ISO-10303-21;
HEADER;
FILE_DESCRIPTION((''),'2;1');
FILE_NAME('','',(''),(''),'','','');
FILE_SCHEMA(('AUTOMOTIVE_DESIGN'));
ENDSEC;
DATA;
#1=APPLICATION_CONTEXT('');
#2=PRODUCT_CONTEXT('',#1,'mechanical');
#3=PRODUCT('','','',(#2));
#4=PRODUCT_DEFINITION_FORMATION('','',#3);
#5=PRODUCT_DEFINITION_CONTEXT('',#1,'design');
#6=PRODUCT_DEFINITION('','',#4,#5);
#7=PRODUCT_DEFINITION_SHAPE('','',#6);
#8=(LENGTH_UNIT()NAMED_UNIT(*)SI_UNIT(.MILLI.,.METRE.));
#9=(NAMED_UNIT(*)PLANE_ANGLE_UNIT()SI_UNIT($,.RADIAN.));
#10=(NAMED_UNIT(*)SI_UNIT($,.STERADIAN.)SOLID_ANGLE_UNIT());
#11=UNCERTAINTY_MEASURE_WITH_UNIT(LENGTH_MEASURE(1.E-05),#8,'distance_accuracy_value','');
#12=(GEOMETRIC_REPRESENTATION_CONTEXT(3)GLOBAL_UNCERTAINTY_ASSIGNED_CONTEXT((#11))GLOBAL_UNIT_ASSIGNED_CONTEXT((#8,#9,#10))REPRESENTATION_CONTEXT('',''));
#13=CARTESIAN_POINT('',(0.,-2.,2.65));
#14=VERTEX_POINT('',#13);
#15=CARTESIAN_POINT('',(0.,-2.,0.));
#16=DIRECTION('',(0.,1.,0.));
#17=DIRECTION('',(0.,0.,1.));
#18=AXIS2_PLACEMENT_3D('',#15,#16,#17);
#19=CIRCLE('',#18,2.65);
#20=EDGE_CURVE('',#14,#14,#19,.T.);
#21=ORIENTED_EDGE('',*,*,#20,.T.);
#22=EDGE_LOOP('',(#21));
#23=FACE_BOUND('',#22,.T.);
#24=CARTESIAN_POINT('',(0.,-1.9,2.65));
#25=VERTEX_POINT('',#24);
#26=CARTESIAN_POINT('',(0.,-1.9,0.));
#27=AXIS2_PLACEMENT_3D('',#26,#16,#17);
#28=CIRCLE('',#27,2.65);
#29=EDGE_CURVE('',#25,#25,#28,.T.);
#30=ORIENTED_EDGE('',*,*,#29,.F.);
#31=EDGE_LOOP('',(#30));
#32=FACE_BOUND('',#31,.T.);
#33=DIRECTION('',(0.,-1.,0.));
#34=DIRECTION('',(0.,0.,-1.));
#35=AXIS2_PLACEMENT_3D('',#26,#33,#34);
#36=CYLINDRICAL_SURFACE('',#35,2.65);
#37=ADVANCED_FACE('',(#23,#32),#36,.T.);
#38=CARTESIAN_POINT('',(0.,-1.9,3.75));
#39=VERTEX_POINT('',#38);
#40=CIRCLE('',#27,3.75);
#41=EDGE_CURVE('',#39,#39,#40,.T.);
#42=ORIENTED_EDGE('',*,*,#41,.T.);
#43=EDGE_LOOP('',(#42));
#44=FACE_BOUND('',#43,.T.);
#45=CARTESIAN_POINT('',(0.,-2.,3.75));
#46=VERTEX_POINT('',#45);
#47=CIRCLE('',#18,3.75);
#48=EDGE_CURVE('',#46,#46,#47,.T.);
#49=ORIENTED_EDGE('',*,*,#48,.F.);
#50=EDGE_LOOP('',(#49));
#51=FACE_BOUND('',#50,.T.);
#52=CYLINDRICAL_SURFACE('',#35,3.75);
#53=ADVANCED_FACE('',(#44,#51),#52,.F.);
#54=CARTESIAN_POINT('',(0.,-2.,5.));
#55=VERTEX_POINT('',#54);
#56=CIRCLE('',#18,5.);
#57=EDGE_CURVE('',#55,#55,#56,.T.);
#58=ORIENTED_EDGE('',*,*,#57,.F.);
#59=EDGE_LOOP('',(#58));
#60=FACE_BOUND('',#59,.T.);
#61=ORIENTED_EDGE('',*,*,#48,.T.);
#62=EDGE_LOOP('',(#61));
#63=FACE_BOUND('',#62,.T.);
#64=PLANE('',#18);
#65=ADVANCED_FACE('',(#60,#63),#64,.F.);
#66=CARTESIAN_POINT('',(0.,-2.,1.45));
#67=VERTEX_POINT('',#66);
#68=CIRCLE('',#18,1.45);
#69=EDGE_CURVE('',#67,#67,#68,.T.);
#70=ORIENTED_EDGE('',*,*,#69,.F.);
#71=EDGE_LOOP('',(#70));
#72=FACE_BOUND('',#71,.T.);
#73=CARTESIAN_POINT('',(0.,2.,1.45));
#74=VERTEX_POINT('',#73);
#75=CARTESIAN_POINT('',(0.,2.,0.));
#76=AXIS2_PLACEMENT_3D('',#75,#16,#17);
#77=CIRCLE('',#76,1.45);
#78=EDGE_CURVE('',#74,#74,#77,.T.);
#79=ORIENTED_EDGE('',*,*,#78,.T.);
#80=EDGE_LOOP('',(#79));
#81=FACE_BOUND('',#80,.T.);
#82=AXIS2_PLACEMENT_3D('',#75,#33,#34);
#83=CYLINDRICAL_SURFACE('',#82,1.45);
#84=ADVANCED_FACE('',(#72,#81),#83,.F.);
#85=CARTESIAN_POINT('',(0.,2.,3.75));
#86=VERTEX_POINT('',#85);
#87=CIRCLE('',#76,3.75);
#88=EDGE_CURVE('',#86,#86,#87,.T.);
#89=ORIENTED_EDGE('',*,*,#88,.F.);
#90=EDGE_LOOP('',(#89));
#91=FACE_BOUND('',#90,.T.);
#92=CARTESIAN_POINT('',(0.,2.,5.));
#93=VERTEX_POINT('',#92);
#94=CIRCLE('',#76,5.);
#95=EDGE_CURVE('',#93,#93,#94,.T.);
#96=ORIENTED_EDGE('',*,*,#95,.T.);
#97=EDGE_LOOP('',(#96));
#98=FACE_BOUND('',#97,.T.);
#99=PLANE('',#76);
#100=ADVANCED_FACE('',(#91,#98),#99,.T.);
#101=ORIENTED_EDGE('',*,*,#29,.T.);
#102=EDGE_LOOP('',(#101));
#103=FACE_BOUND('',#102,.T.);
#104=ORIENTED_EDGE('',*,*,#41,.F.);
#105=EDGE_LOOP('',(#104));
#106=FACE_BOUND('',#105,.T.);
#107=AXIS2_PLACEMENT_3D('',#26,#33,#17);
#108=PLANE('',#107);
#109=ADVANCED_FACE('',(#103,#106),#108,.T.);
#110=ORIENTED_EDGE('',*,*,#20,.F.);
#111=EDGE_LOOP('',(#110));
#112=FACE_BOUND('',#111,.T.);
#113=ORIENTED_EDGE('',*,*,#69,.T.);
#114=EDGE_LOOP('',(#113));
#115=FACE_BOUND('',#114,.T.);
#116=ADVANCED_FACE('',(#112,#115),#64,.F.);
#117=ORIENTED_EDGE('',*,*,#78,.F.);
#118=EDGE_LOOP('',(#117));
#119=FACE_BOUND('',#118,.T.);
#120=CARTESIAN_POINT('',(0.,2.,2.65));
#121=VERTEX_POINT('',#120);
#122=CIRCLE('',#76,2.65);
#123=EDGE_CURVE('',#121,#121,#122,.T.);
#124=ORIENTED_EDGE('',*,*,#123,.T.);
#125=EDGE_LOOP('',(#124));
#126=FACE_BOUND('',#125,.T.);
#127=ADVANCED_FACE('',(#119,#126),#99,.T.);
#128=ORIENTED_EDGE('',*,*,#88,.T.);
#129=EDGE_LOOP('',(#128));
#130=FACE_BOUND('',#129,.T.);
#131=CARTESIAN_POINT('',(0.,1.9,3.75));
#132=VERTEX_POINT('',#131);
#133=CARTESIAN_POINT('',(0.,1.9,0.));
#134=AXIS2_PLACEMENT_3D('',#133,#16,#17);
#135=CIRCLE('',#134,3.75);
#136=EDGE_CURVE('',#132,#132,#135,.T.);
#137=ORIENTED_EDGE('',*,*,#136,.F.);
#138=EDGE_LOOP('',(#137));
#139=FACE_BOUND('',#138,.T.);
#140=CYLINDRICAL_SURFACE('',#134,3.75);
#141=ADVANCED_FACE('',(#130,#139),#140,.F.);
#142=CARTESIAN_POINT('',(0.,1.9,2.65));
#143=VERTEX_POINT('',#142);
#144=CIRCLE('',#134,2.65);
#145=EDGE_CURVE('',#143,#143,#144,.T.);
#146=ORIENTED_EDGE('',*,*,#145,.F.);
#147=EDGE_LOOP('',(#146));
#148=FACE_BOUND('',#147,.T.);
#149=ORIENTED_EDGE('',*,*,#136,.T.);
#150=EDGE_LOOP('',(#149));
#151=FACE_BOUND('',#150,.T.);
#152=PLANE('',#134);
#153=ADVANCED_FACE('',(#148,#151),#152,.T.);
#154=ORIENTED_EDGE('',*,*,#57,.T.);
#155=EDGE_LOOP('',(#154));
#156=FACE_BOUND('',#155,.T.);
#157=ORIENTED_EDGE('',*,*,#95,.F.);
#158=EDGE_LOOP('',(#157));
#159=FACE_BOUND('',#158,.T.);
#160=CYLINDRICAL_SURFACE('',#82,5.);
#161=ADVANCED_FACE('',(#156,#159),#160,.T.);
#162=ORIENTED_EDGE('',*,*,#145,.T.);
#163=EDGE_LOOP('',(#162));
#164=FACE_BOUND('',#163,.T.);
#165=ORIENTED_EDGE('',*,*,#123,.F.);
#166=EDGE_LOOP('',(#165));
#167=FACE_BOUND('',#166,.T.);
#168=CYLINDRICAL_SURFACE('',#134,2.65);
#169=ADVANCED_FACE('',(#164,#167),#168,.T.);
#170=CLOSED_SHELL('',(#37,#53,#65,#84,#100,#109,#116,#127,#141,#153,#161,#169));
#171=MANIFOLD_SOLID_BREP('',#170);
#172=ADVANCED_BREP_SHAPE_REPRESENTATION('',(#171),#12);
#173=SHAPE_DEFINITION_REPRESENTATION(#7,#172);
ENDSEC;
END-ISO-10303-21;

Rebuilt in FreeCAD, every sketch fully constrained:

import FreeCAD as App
import Part
import Sketcher

V = App.Vector
Q = App.Units.Quantity

doc = App.newDocument("Part")
params = doc.addObject("Spreadsheet::Sheet", "Params")
for row, (alias, value) in enumerate([
    ("sketch1_diameter", "10 mm"),
    ("sketch1_diameter2", "2.9 mm"),
    ("pad1_length", "4 mm"),
    ("sketch2_diameter", "7.5 mm"),
    ("sketch2_diameter2", "5.3 mm"),
    ("pocket1_length", "0.1 mm"),
], start=1):
    params.set(f"A{row}", alias)
    params.set(f"B{row}", "=" + value)
    params.setAlias(f"B{row}", alias)

body = doc.addObject("PartDesign::Body", "Body")

# Sketch on XZ plane
sketch1 = body.newObject("Sketcher::SketchObject", "Sketch")
sketch1.AttachmentSupport = (doc.getObject("XZ_Plane"), [""])
sketch1.MapMode = "FlatFace"
sketch1.addGeometry([
    Part.Circle(V(0, 0, 0), V(0, 0, 1), 5),
    Part.Circle(V(0, 0, 0), V(0, 0, 1), 1.4),
], False)
sketch1.addConstraint([
    Sketcher.Constraint("Coincident", 0, 3, -1, 1),
    Sketcher.Constraint("Coincident", 1, 3, -1, 1),
    Sketcher.Constraint("Diameter", 0, Q("10 mm")),
    Sketcher.Constraint("Diameter", 1, Q("2.9 mm")),
])
sketch1.setExpression("Constraints[2]", "Params.sketch1_diameter")
sketch1.setExpression("Constraints[3]", "Params.sketch1_diameter2")
pad1 = body.newObject("PartDesign::Pad", "Pad")
pad1.Profile = sketch1
pad1.setExpression("Length", "Params.pad1_length")
pad1.Midplane = True

# Sketch on XZ plane
sketch2 = body.newObject("Sketcher::SketchObject", "Sketch001")
sketch2.AttachmentSupport = (doc.getObject("XZ_Plane"), [""])
sketch2.MapMode = "FlatFace"
sketch2.AttachmentOffset = App.Placement(V(0, 0, -2), App.Rotation())
sketch2.addGeometry([
    Part.Circle(V(0, 0, 0), V(0, 0, 1), 3.8),
    Part.Circle(V(0, 0, 0), V(0, 0, 1), 2.6),
], False)
sketch2.addConstraint([
    Sketcher.Constraint("Coincident", 0, 3, -1, 1),
    Sketcher.Constraint("Coincident", 1, 3, -1, 1),
    Sketcher.Constraint("Diameter", 0, Q("7.5 mm")),
    Sketcher.Constraint("Diameter", 1, Q("5.3 mm")),
])
sketch2.setExpression("Constraints[2]", "Params.sketch2_diameter")
sketch2.setExpression("Constraints[3]", "Params.sketch2_diameter2")
pocket1 = body.newObject("PartDesign::Pocket", "Pocket")
pocket1.Profile = sketch2
pocket1.setExpression("Length", "Params.pocket1_length")
pocket1.Reversed = True
doc.recompute()

mirrored = body.newObject("PartDesign::Mirrored", "Mirrored")
mirrored.Originals = [pocket1]
mirrored.MirrorPlane = (doc.getObject("XZ_Plane"), [""])
body.Tip = mirrored

doc.recompute()
